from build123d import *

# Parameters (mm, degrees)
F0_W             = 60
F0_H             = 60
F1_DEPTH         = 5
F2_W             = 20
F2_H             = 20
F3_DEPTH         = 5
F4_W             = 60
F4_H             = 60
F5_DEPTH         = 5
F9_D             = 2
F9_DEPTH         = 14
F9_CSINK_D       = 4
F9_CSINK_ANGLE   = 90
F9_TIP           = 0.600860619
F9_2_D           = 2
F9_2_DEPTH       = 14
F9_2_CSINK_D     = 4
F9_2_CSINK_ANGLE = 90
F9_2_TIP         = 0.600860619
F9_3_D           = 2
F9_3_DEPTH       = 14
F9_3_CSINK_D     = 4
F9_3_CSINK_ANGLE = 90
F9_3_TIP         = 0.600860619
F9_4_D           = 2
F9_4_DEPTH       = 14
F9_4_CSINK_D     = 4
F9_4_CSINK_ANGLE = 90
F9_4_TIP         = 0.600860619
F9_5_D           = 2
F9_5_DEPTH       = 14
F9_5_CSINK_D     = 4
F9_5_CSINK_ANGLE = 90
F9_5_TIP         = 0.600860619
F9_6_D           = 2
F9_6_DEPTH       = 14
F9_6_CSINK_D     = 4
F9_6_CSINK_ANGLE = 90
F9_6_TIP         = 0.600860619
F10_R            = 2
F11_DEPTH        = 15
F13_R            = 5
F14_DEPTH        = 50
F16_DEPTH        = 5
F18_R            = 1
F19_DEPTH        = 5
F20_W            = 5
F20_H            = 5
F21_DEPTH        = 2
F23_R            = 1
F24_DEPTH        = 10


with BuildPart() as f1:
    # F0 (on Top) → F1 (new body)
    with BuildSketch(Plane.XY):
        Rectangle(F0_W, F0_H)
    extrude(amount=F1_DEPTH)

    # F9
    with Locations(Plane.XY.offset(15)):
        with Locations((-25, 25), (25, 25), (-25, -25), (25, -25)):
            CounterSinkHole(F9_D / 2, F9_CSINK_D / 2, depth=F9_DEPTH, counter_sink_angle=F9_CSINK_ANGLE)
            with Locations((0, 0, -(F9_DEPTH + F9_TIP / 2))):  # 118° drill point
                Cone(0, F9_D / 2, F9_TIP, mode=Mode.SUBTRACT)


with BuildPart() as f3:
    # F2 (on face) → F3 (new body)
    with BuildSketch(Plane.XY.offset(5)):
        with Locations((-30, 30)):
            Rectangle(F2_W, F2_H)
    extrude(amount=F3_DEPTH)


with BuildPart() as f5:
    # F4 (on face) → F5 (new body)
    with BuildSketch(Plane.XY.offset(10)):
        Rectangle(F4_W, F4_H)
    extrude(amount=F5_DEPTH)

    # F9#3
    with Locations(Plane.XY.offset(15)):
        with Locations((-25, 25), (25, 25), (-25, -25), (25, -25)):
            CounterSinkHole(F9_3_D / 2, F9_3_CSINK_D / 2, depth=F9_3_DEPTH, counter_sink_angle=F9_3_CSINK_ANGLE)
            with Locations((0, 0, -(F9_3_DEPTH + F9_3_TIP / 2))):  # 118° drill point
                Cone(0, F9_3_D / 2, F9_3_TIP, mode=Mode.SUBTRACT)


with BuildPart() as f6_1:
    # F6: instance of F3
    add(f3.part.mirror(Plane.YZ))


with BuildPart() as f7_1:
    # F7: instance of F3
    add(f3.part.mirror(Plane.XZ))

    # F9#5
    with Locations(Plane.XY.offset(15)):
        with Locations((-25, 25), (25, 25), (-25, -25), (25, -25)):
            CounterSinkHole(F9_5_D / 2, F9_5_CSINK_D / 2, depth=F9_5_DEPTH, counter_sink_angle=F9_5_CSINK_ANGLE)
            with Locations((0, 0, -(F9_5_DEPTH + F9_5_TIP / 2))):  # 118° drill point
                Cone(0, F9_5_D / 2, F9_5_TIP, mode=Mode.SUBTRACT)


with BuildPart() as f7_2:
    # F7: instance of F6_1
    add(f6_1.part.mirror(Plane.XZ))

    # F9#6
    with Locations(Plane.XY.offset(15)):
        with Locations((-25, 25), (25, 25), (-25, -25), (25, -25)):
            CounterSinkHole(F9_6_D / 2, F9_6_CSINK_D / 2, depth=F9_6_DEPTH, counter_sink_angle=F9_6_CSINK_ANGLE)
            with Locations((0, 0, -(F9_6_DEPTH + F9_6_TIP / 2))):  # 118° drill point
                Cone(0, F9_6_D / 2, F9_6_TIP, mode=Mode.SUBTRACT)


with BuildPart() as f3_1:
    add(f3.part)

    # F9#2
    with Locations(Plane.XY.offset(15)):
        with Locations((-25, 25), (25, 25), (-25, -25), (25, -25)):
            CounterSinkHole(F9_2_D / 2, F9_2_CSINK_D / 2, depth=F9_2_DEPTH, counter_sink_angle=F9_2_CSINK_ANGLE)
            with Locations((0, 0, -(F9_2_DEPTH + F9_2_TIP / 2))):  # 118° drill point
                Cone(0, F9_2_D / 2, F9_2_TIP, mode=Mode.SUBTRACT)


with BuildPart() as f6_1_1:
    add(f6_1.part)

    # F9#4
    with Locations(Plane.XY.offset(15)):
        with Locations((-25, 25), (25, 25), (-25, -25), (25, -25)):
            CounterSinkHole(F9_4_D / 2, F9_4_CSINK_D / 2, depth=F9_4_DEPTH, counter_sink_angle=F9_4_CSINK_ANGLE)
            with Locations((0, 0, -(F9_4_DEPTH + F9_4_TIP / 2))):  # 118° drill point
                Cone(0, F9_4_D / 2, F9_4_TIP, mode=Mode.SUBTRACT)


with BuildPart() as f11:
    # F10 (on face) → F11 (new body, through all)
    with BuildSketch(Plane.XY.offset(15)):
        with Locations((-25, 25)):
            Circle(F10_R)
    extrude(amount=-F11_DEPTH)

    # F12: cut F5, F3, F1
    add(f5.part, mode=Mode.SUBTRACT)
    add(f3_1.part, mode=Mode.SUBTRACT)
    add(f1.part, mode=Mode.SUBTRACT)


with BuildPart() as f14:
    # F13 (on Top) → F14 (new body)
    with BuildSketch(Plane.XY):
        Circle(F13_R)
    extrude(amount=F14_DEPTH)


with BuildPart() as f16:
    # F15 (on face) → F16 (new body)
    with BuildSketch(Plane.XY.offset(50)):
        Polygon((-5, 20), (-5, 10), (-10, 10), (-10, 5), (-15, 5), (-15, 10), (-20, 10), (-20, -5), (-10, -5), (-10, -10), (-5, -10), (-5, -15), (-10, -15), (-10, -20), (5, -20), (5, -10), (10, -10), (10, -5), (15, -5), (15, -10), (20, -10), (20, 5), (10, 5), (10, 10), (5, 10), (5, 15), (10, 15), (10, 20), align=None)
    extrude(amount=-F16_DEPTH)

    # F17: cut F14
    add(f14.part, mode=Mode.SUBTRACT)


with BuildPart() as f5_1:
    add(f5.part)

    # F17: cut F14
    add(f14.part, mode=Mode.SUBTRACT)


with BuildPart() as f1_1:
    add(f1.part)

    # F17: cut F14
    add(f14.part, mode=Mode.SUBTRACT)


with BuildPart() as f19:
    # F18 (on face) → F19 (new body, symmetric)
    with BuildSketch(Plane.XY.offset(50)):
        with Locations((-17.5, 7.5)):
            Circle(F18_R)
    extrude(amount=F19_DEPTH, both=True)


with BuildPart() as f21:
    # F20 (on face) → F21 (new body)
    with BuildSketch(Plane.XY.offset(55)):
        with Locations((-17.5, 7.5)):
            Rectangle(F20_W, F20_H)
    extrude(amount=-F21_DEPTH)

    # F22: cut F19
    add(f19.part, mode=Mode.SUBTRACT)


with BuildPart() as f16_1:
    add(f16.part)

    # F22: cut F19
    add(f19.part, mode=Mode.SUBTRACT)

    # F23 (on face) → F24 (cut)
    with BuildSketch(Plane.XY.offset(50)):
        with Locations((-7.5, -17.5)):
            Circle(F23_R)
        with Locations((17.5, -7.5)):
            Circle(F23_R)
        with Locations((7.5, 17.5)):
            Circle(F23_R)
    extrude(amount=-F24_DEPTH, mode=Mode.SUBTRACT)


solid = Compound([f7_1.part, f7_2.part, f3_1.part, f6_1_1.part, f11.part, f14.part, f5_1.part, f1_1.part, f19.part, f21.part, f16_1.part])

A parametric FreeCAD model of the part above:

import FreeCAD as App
import Part
import Sketcher


def add_polygon(sketch, points):
    """Adds a closed chain of lines whose ends are joined by coincident constraints."""
    first, n = sketch.GeometryCount, len(points)
    for a, b in zip(points, points[1:] + points[:1]):
        sketch.addGeometry(Part.LineSegment(App.Vector(*a, 0), App.Vector(*b, 0)), False)
    for i in range(n):
        sketch.addConstraint(Sketcher.Constraint("Coincident", first + i, 2, first + (i + 1) % n, 1))

doc = App.newDocument("Part")
params = doc.addObject("Spreadsheet::Sheet", "Params")
for row, (alias, value) in enumerate([
    ("sketch1_width", "60 mm"),
    ("pad1_length", "5 mm"),
    ("sketch2_diameter", "2 mm"),
    ("hole_diameter", "2 mm"),
    ("hole_depth", "14 mm"),
    ("hole_csink_diameter", "4 mm"),
    ("sketch3_width", "20 mm"),
    ("pad2_length", "5 mm"),
    ("sketch4_width", "60 mm"),
    ("pad3_length", "5 mm"),
    ("sketch5_diameter", "2 mm"),
    ("hole2_diameter", "2 mm"),
    ("hole2_depth", "14 mm"),
    ("hole2_csink_diameter", "4 mm"),
    ("sketch6_diameter", "2 mm"),
    ("hole3_diameter", "2 mm"),
    ("hole3_depth", "14 mm"),
    ("hole3_csink_diameter", "4 mm"),
    ("sketch7_diameter", "2 mm"),
    ("hole4_diameter", "2 mm"),
    ("hole4_depth", "14 mm"),
    ("hole4_csink_diameter", "4 mm"),
    ("sketch8_diameter", "2 mm"),
    ("hole5_diameter", "2 mm"),
    ("hole5_depth", "14 mm"),
    ("hole5_csink_diameter", "4 mm"),
    ("sketch9_diameter", "2 mm"),
    ("hole6_diameter", "2 mm"),
    ("hole6_depth", "14 mm"),
    ("hole6_csink_diameter", "4 mm"),
    ("sketch10_diameter", "4 mm"),
    ("pad4_length", "15 mm"),
    ("sketch11_diameter", "10 mm"),
    ("pad5_length", "50 mm"),
    ("sketch12_width", "5 mm"),
    ("sketch12_width2", "15 mm"),
    ("pad6_length", "5 mm"),
    ("sketch13_diameter", "2 mm"),
    ("pad7_length", "10 mm"),
    ("sketch14_width", "5 mm"),
    ("pad8_length", "2 mm"),
    ("sketch15_diameter", "2 mm"),
    ("pocket1_length", "10 mm"),
], start=1):
    params.set(f"A{row}", alias)
    params.set(f"B{row}", "=" + value)
    params.setAlias(f"B{row}", alias)

body = doc.addObject("PartDesign::Body", "Body")

# Sketch on XY plane
sketch1 = body.newObject("Sketcher::SketchObject", "Sketch")
sketch1.AttachmentSupport = (doc.getObject("XY_Plane"), [""])
sketch1.MapMode = "FlatFace"
add_polygon(sketch1, [(-30, 30), (-30, -30), (30, -30), (30, 30)])  # lines 0-3
sketch1.addConstraint(Sketcher.Constraint("Vertical", 0))
sketch1.addConstraint(Sketcher.Constraint("Horizontal", 1))
sketch1.addConstraint(Sketcher.Constraint("Vertical", 2))
sketch1.addConstraint(Sketcher.Constraint("Horizontal", 3))
sketch1.addConstraint(Sketcher.Constraint("Symmetric", 0, 2, 2, 2, -1, 1))
sketch1.addConstraint(Sketcher.Constraint("Equal", 3, 0))
sketch1.addConstraint(Sketcher.Constraint("DistanceX", 1, 1, 1, 2, 60.0))
sketch1.setExpression("Constraints[10]", "Params.sketch1_width")
pad1 = body.newObject("PartDesign::Pad", "Pad")
pad1.Profile = sketch1
pad1.setExpression("Length", "Params.pad1_length")

# Sketch on XY plane
sketch2 = body.newObject("Sketcher::SketchObject", "Sketch001")
sketch2.AttachmentSupport = (doc.getObject("XY_Plane"), [""])
sketch2.MapMode = "FlatFace"
sketch2.AttachmentOffset = App.Placement(App.Vector(0, 0, 15), App.Rotation())
sketch2.addGeometry(Part.Circle(App.Vector(-25, 25, 0), App.Vector(0, 0, 1), 1), False)
sketch2.addGeometry(Part.Circle(App.Vector(25, 25, 0), App.Vector(0, 0, 1), 1), False)
sketch2.addGeometry(Part.Circle(App.Vector(-25, -25, 0), App.Vector(0, 0, 1), 1), False)
sketch2.addGeometry(Part.Circle(App.Vector(25, -25, 0), App.Vector(0, 0, 1), 1), False)
sketch2.addConstraint(Sketcher.Constraint("Equal", 0, 1))
sketch2.addConstraint(Sketcher.Constraint("Equal", 1, 2))
sketch2.addConstraint(Sketcher.Constraint("Equal", 2, 3))
sketch2.addConstraint(Sketcher.Constraint("Symmetric", 1, 3, 2, 3, -1, 1))
sketch2.addConstraint(Sketcher.Constraint("Symmetric", 0, 3, 3, 3, -1, 1))
sketch2.addConstraint(Sketcher.Constraint("Symmetric", 0, 3, 1, 3, -2))
sketch2.addConstraint(Sketcher.Constraint("Diameter", 0, 2.0))
sketch2.addConstraint(Sketcher.Constraint("DistanceX", 0, 3, -1, 1, 25.0))
sketch2.addConstraint(Sketcher.Constraint("DistanceY", -1, 1, 0, 3, 25.0))
sketch2.setExpression("Constraints[6]", "Params.sketch2_diameter")
doc.recompute()
hole = body.newObject("PartDesign::Hole", "Hole")
hole.Profile = sketch2
hole.ThreadType = "None"
hole.setExpression("Diameter", "Params.hole_diameter")
hole.DepthType = "Dimension"
hole.setExpression("Depth", "Params.hole_depth")
hole.DrillPoint = "Angled"
hole.DrillPointAngle = 118
hole.HoleCutType = "Countersink"
hole.setExpression("HoleCutDiameter", "Params.hole_csink_diameter")
hole.HoleCutCountersinkAngle = 90
body2 = doc.addObject("PartDesign::Body", "Body001")

# Sketch on XY plane
sketch3 = body2.newObject("Sketcher::SketchObject", "Sketch002")
sketch3.AttachmentSupport = (doc.getObject("XY_Plane001"), [""])
sketch3.MapMode = "FlatFace"
sketch3.AttachmentOffset = App.Placement(App.Vector(0, 0, 5), App.Rotation())
add_polygon(sketch3, [(-40, 40), (-40, 20), (-20, 20), (-20, 40)])  # lines 0-3
sketch3.addConstraint(Sketcher.Constraint("Vertical", 0))
sketch3.addConstraint(Sketcher.Constraint("Horizontal", 1))
sketch3.addConstraint(Sketcher.Constraint("Vertical", 2))
sketch3.addConstraint(Sketcher.Constraint("Horizontal", 3))
sketch3.addConstraint(Sketcher.Constraint("Equal", 3, 0))
sketch3.addConstraint(Sketcher.Constraint("DistanceX", 1, 1, 1, 2, 20.0))
sketch3.addConstraint(Sketcher.Constraint("DistanceX", 0, 2, -1, 1, 40.0))
sketch3.addConstraint(Sketcher.Constraint("DistanceY", -1, 1, 0, 2, 20.0))
sketch3.setExpression("Constraints[9]", "Params.sketch3_width")
pad2 = body2.newObject("PartDesign::Pad", "Pad001")
pad2.Profile = sketch3
pad2.setExpression("Length", "Params.pad2_length")
body3 = doc.addObject("PartDesign::Body", "Body002")

# Sketch on XY plane
sketch4 = body3.newObject("Sketcher::SketchObject", "Sketch003")
sketch4.AttachmentSupport = (doc.getObject("XY_Plane002"), [""])
sketch4.MapMode = "FlatFace"
sketch4.AttachmentOffset = App.Placement(App.Vector(0, 0, 10), App.Rotation())
add_polygon(sketch4, [(-30, 30), (-30, -30), (30, -30), (30, 30)])  # lines 0-3
sketch4.addConstraint(Sketcher.Constraint("Vertical", 0))
sketch4.addConstraint(Sketcher.Constraint("Horizontal", 1))
sketch4.addConstraint(Sketcher.Constraint("Vertical", 2))
sketch4.addConstraint(Sketcher.Constraint("Horizontal", 3))
sketch4.addConstraint(Sketcher.Constraint("Symmetric", 0, 2, 2, 2, -1, 1))
sketch4.addConstraint(Sketcher.Constraint("Equal", 3, 0))
sketch4.addConstraint(Sketcher.Constraint("DistanceX", 1, 1, 1, 2, 60.0))
sketch4.setExpression("Constraints[10]", "Params.sketch4_width")
pad3 = body3.newObject("PartDesign::Pad", "Pad002")
pad3.Profile = sketch4
pad3.setExpression("Length", "Params.pad3_length")

# Sketch on XY plane
sketch5 = body3.newObject("Sketcher::SketchObject", "Sketch004")
sketch5.AttachmentSupport = (doc.getObject("XY_Plane002"), [""])
sketch5.MapMode = "FlatFace"
sketch5.AttachmentOffset = App.Placement(App.Vector(0, 0, 15), App.Rotation())
sketch5.addGeometry(Part.Circle(App.Vector(-25, 25, 0), App.Vector(0, 0, 1), 1), False)
sketch5.addGeometry(Part.Circle(App.Vector(25, 25, 0), App.Vector(0, 0, 1), 1), False)
sketch5.addGeometry(Part.Circle(App.Vector(-25, -25, 0), App.Vector(0, 0, 1), 1), False)
sketch5.addGeometry(Part.Circle(App.Vector(25, -25, 0), App.Vector(0, 0, 1), 1), False)
sketch5.addConstraint(Sketcher.Constraint("Equal", 0, 1))
sketch5.addConstraint(Sketcher.Constraint("Equal", 1, 2))
sketch5.addConstraint(Sketcher.Constraint("Equal", 2, 3))
sketch5.addConstraint(Sketcher.Constraint("Symmetric", 1, 3, 2, 3, -1, 1))
sketch5.addConstraint(Sketcher.Constraint("Symmetric", 0, 3, 3, 3, -1, 1))
sketch5.addConstraint(Sketcher.Constraint("Symmetric", 0, 3, 1, 3, -2))
sketch5.addConstraint(Sketcher.Constraint("Diameter", 0, 2.0))
sketch5.addConstraint(Sketcher.Constraint("DistanceX", 0, 3, -1, 1, 25.0))
sketch5.addConstraint(Sketcher.Constraint("DistanceY", -1, 1, 0, 3, 25.0))
sketch5.setExpression("Constraints[6]", "Params.sketch5_diameter")
doc.recompute()
hole2 = body3.newObject("PartDesign::Hole", "Hole001")
hole2.Profile = sketch5
hole2.ThreadType = "None"
hole2.setExpression("Diameter", "Params.hole2_diameter")
hole2.DepthType = "Dimension"
hole2.setExpression("Depth", "Params.hole2_depth")
hole2.DrillPoint = "Angled"
hole2.DrillPointAngle = 118
hole2.HoleCutType = "Countersink"
hole2.setExpression("HoleCutDiameter", "Params.hole2_csink_diameter")
hole2.HoleCutCountersinkAngle = 90
body4 = doc.addObject("PartDesign::Body", "Body003")
doc.recompute()

mirroring = doc.addObject("Part::Mirroring", "Mirroring")
mirroring.Source = body2
mirroring.Base = App.Vector(0, 0, 0)
mirroring.Normal = App.Vector(1, 0, 0)
body4.BaseFeature = mirroring
doc.recompute()
body5 = doc.addObject("PartDesign::Body", "Body004")
doc.recompute()

mirroring2 = doc.addObject("Part::Mirroring", "Mirroring001")
mirroring2.Source = body2
mirroring2.Base = App.Vector(0, 0, 0)
mirroring2.Normal = App.Vector(0, -1, 0)
body5.BaseFeature = mirroring2
doc.recompute()

# Sketch on XY plane
sketch6 = body5.newObject("Sketcher::SketchObject", "Sketch005")
sketch6.AttachmentSupport = (doc.getObject("XY_Plane004"), [""])
sketch6.MapMode = "FlatFace"
sketch6.AttachmentOffset = App.Placement(App.Vector(0, 0, 15), App.Rotation())
sketch6.addGeometry(Part.Circle(App.Vector(-25, 25, 0), App.Vector(0, 0, 1), 1), False)
sketch6.addGeometry(Part.Circle(App.Vector(25, 25, 0), App.Vector(0, 0, 1), 1), False)
sketch6.addGeometry(Part.Circle(App.Vector(-25, -25, 0), App.Vector(0, 0, 1), 1), False)
sketch6.addGeometry(Part.Circle(App.Vector(25, -25, 0), App.Vector(0, 0, 1), 1), False)
sketch6.addConstraint(Sketcher.Constraint("Equal", 0, 1))
sketch6.addConstraint(Sketcher.Constraint("Equal", 1, 2))
sketch6.addConstraint(Sketcher.Constraint("Equal", 2, 3))
sketch6.addConstraint(Sketcher.Constraint("Symmetric", 1, 3, 2, 3, -1, 1))
sketch6.addConstraint(Sketcher.Constraint("Symmetric", 0, 3, 3, 3, -1, 1))
sketch6.addConstraint(Sketcher.Constraint("Symmetric", 0, 3, 1, 3, -2))
sketch6.addConstraint(Sketcher.Constraint("Diameter", 0, 2.0))
sketch6.addConstraint(Sketcher.Constraint("DistanceX", 0, 3, -1, 1, 25.0))
sketch6.addConstraint(Sketcher.Constraint("DistanceY", -1, 1, 0, 3, 25.0))
sketch6.setExpression("Constraints[6]", "Params.sketch6_diameter")
doc.recompute()
hole3 = body5.newObject("PartDesign::Hole", "Hole002")
hole3.Profile = sketch6
hole3.ThreadType = "None"
hole3.setExpression("Diameter", "Params.hole3_diameter")
hole3.DepthType = "Dimension"
hole3.setExpression("Depth", "Params.hole3_depth")
hole3.DrillPoint = "Angled"
hole3.DrillPointAngle = 118
hole3.HoleCutType = "Countersink"
hole3.setExpression("HoleCutDiameter", "Params.hole3_csink_diameter")
hole3.HoleCutCountersinkAngle = 90
body6 = doc.addObject("PartDesign::Body", "Body005")
doc.recompute()

mirroring3 = doc.addObject("Part::Mirroring", "Mirroring002")
mirroring3.Source = body4
mirroring3.Base = App.Vector(0, 0, 0)
mirroring3.Normal = App.Vector(0, -1, 0)
body6.BaseFeature = mirroring3
doc.recompute()

# Sketch on XY plane
sketch7 = body6.newObject("Sketcher::SketchObject", "Sketch006")
sketch7.AttachmentSupport = (doc.getObject("XY_Plane005"), [""])
sketch7.MapMode = "FlatFace"
sketch7.AttachmentOffset = App.Placement(App.Vector(0, 0, 15), App.Rotation())
sketch7.addGeometry(Part.Circle(App.Vector(-25, 25, 0), App.Vector(0, 0, 1), 1), False)
sketch7.addGeometry(Part.Circle(App.Vector(25, 25, 0), App.Vector(0, 0, 1), 1), False)
sketch7.addGeometry(Part.Circle(App.Vector(-25, -25, 0), App.Vector(0, 0, 1), 1), False)
sketch7.addGeometry(Part.Circle(App.Vector(25, -25, 0), App.Vector(0, 0, 1), 1), False)
sketch7.addConstraint(Sketcher.Constraint("Equal", 0, 1))
sketch7.addConstraint(Sketcher.Constraint("Equal", 1, 2))
sketch7.addConstraint(Sketcher.Constraint("Equal", 2, 3))
sketch7.addConstraint(Sketcher.Constraint("Symmetric", 1, 3, 2, 3, -1, 1))
sketch7.addConstraint(Sketcher.Constraint("Symmetric", 0, 3, 3, 3, -1, 1))
sketch7.addConstraint(Sketcher.Constraint("Symmetric", 0, 3, 1, 3, -2))
sketch7.addConstraint(Sketcher.Constraint("Diameter", 0, 2.0))
sketch7.addConstraint(Sketcher.Constraint("DistanceX", 0, 3, -1, 1, 25.0))
sketch7.addConstraint(Sketcher.Constraint("DistanceY", -1, 1, 0, 3, 25.0))
sketch7.setExpression("Constraints[6]", "Params.sketch7_diameter")
doc.recompute()
hole4 = body6.newObject("PartDesign::Hole", "Hole003")
hole4.Profile = sketch7
hole4.ThreadType = "None"
hole4.setExpression("Diameter", "Params.hole4_diameter")
hole4.DepthType = "Dimension"
hole4.setExpression("Depth", "Params.hole4_depth")
hole4.DrillPoint = "Angled"
hole4.DrillPointAngle = 118
hole4.HoleCutType = "Countersink"
hole4.setExpression("HoleCutDiameter", "Params.hole4_csink_diameter")
hole4.HoleCutCountersinkAngle = 90

# Sketch on XY plane
sketch8 = body2.newObject("Sketcher::SketchObject", "Sketch007")
sketch8.AttachmentSupport = (doc.getObject("XY_Plane001"), [""])
sketch8.MapMode = "FlatFace"
sketch8.AttachmentOffset = App.Placement(App.Vector(0, 0, 15), App.Rotation())
sketch8.addGeometry(Part.Circle(App.Vector(-25, 25, 0), App.Vector(0, 0, 1), 1), False)
sketch8.addGeometry(Part.Circle(App.Vector(25, 25, 0), App.Vector(0, 0, 1), 1), False)
sketch8.addGeometry(Part.Circle(App.Vector(-25, -25, 0), App.Vector(0, 0, 1), 1), False)
sketch8.addGeometry(Part.Circle(App.Vector(25, -25, 0), App.Vector(0, 0, 1), 1), False)
sketch8.addConstraint(Sketcher.Constraint("Equal", 0, 1))
sketch8.addConstraint(Sketcher.Constraint("Equal", 1, 2))
sketch8.addConstraint(Sketcher.Constraint("Equal", 2, 3))
sketch8.addConstraint(Sketcher.Constraint("Symmetric", 1, 3, 2, 3, -1, 1))
sketch8.addConstraint(Sketcher.Constraint("Symmetric", 0, 3, 3, 3, -1, 1))
sketch8.addConstraint(Sketcher.Constraint("Symmetric", 0, 3, 1, 3, -2))
sketch8.addConstraint(Sketcher.Constraint("Diameter", 0, 2.0))
sketch8.addConstraint(Sketcher.Constraint("DistanceX", 0, 3, -1, 1, 25.0))
sketch8.addConstraint(Sketcher.Constraint("DistanceY", -1, 1, 0, 3, 25.0))
sketch8.setExpression("Constraints[6]", "Params.sketch8_diameter")
doc.recompute()
hole5 = body2.newObject("PartDesign::Hole", "Hole004")
hole5.Profile = sketch8
hole5.ThreadType = "None"
hole5.setExpression("Diameter", "Params.hole5_diameter")
hole5.DepthType = "Dimension"
hole5.setExpression("Depth", "Params.hole5_depth")
hole5.DrillPoint = "Angled"
hole5.DrillPointAngle = 118
hole5.HoleCutType = "Countersink"
hole5.setExpression("HoleCutDiameter", "Params.hole5_csink_diameter")
hole5.HoleCutCountersinkAngle = 90

# Sketch on XY plane
sketch9 = body4.newObject("Sketcher::SketchObject", "Sketch008")
sketch9.AttachmentSupport = (doc.getObject("XY_Plane003"), [""])
sketch9.MapMode = "FlatFace"
sketch9.AttachmentOffset = App.Placement(App.Vector(0, 0, 15), App.Rotation())
sketch9.addGeometry(Part.Circle(App.Vector(-25, 25, 0), App.Vector(0, 0, 1), 1), False)
sketch9.addGeometry(Part.Circle(App.Vector(25, 25, 0), App.Vector(0, 0, 1), 1), False)
sketch9.addGeometry(Part.Circle(App.Vector(-25, -25, 0), App.Vector(0, 0, 1), 1), False)
sketch9.addGeometry(Part.Circle(App.Vector(25, -25, 0), App.Vector(0, 0, 1), 1), False)
sketch9.addConstraint(Sketcher.Constraint("Equal", 0, 1))
sketch9.addConstraint(Sketcher.Constraint("Equal", 1, 2))
sketch9.addConstraint(Sketcher.Constraint("Equal", 2, 3))
sketch9.addConstraint(Sketcher.Constraint("Symmetric", 1, 3, 2, 3, -1, 1))
sketch9.addConstraint(Sketcher.Constraint("Symmetric", 0, 3, 3, 3, -1, 1))
sketch9.addConstraint(Sketcher.Constraint("Symmetric", 0, 3, 1, 3, -2))
sketch9.addConstraint(Sketcher.Constraint("Diameter", 0, 2.0))
sketch9.addConstraint(Sketcher.Constraint("DistanceX", 0, 3, -1, 1, 25.0))
sketch9.addConstraint(Sketcher.Constraint("DistanceY", -1, 1, 0, 3, 25.0))
sketch9.setExpression("Constraints[6]", "Params.sketch9_diameter")
doc.recompute()
hole6 = body4.newObject("PartDesign::Hole", "Hole005")
hole6.Profile = sketch9
hole6.ThreadType = "None"
hole6.setExpression("Diameter", "Params.hole6_diameter")
hole6.DepthType = "Dimension"
hole6.setExpression("Depth", "Params.hole6_depth")
hole6.DrillPoint = "Angled"
hole6.DrillPointAngle = 118
hole6.HoleCutType = "Countersink"
hole6.setExpression("HoleCutDiameter", "Params.hole6_csink_diameter")
hole6.HoleCutCountersinkAngle = 90
body7 = doc.addObject("PartDesign::Body", "Body006")

# Sketch on XY plane
sketch10 = body7.newObject("Sketcher::SketchObject", "Sketch009")
sketch10.AttachmentSupport = (doc.getObject("XY_Plane006"), [""])
sketch10.MapMode = "FlatFace"
sketch10.AttachmentOffset = App.Placement(App.Vector(0, 0, 15), App.Rotation())
sketch10.addGeometry(Part.Circle(App.Vector(-25, 25, 0), App.Vector(0, 0, 1), 2), False)
sketch10.addConstraint(Sketcher.Constraint("Diameter", 0, 4.0))
sketch10.addConstraint(Sketcher.Constraint("DistanceX", 0, 3, -1, 1, 25.0))
sketch10.addConstraint(Sketcher.Constraint("DistanceY", -1, 1, 0, 3, 25.0))
sketch10.setExpression("Constraints[0]", "Params.sketch10_diameter")
pad4 = body7.newObject("PartDesign::Pad", "Pad003")
pad4.Profile = sketch10
pad4.setExpression("Length", "Params.pad4_length")
pad4.Reversed = True
doc.recompute()

body8 = doc.addObject("PartDesign::Body", "Body007")
body8.BaseFeature = body3
boolean = body7.newObject("PartDesign::Boolean", "Boolean")
boolean.Type = "Cut"
boolean.addObjects([body8])
doc.recompute()

body9 = doc.addObject("PartDesign::Body", "Body008")
body9.BaseFeature = body2
boolean2 = body7.newObject("PartDesign::Boolean", "Boolean001")
boolean2.Type = "Cut"
boolean2.addObjects([body9])
doc.recompute()

body10 = doc.addObject("PartDesign::Body", "Body009")
body10.BaseFeature = body
boolean3 = body7.newObject("PartDesign::Boolean", "Boolean002")
boolean3.Type = "Cut"
boolean3.addObjects([body10])
doc.recompute()
body11 = doc.addObject("PartDesign::Body", "Body010")

# Sketch on XY plane
sketch11 = body11.newObject("Sketcher::SketchObject", "Sketch010")
sketch11.AttachmentSupport = (doc.getObject("XY_Plane010"), [""])
sketch11.MapMode = "FlatFace"
sketch11.addGeometry(Part.Circle(App.Vector(0, 0, 0), App.Vector(0, 0, 1), 5), False)
sketch11.addConstraint(Sketcher.Constraint("Coincident", 0, 3, -1, 1))
sketch11.addConstraint(Sketcher.Constraint("Diameter", 0, 10.0))
sketch11.setExpression("Constraints[1]", "Params.sketch11_diameter")
pad5 = body11.newObject("PartDesign::Pad", "Pad004")
pad5.Profile = sketch11
pad5.setExpression("Length", "Params.pad5_length")
body12 = doc.addObject("PartDesign::Body", "Body011")

# Sketch on XY plane
sketch12 = body12.newObject("Sketcher::SketchObject", "Sketch011")
sketch12.AttachmentSupport = (doc.getObject("XY_Plane011"), [""])
sketch12.MapMode = "FlatFace"
sketch12.AttachmentOffset = App.Placement(App.Vector(0, 0, 50), App.Rotation())
add_polygon(sketch12, [(-5, 20), (-5, 10), (-10, 10), (-10, 5), (-15, 5), (-15, 10), (-20, 10), (-20, -5), (-10, -5), (-10, -10), (-5, -10), (-5, -15), (-10, -15), (-10, -20), (5, -20), (5, -10), (10, -10), (10, -5), (15, -5), (15, -10), (20, -10), (20, 5), (10, 5), (10, 10), (5, 10), (5, 15), (10, 15), (10, 20)])  # lines 0-27
sketch12.addConstraint(Sketcher.Constraint("Vertical", 0))
sketch12.addConstraint(Sketcher.Constraint("Horizontal", 1))
sketch12.addConstraint(Sketcher.Constraint("Vertical", 2))
sketch12.addConstraint(Sketcher.Constraint("Horizontal", 3))
sketch12.addConstraint(Sketcher.Constraint("Vertical", 4))
sketch12.addConstraint(Sketcher.Constraint("Horizontal", 5))
sketch12.addConstraint(Sketcher.Constraint("Vertical", 6))
sketch12.addConstraint(Sketcher.Constraint("Horizontal", 7))
sketch12.addConstraint(Sketcher.Constraint("Vertical", 8))
sketch12.addConstraint(Sketcher.Constraint("Horizontal", 9))
sketch12.addConstraint(Sketcher.Constraint("Vertical", 10))
sketch12.addConstraint(Sketcher.Constraint("Horizontal", 11))
sketch12.addConstraint(Sketcher.Constraint("Vertical", 12))
sketch12.addConstraint(Sketcher.Constraint("Horizontal", 13))
sketch12.addConstraint(Sketcher.Constraint("Vertical", 14))
sketch12.addConstraint(Sketcher.Constraint("Horizontal", 15))
sketch12.addConstraint(Sketcher.Constraint("Vertical", 16))
sketch12.addConstraint(Sketcher.Constraint("Horizontal", 17))
sketch12.addConstraint(Sketcher.Constraint("Vertical", 18))
sketch12.addConstraint(Sketcher.Constraint("Horizontal", 19))
sketch12.addConstraint(Sketcher.Constraint("Vertical", 20))
sketch12.addConstraint(Sketcher.Constraint("Horizontal", 21))
sketch12.addConstraint(Sketcher.Constraint("Vertical", 22))
sketch12.addConstraint(Sketcher.Constraint("Horizontal", 23))
sketch12.addConstraint(Sketcher.Constraint("Vertical", 24))
sketch12.addConstraint(Sketcher.Constraint("Horizontal", 25))
sketch12.addConstraint(Sketcher.Constraint("Vertical", 26))
sketch12.addConstraint(Sketcher.Constraint("Horizontal", 27))
sketch12.addConstraint(Sketcher.Constraint("Symmetric", 0, 2, 14, 2, -1, 1))
sketch12.addConstraint(Sketcher.Constraint("Symmetric", 2, 2, 16, 2, -1, 1))
sketch12.addConstraint(Sketcher.Constraint("Symmetric", 4, 2, 18, 2, -1, 1))
sketch12.addConstraint(Sketcher.Constraint("Symmetric", 6, 2, 20, 2, -1, 1))
sketch12.addConstraint(Sketcher.Constraint("Symmetric", 8, 2, 22, 2, -1, 1))
sketch12.addConstraint(Sketcher.Constraint("Symmetric", 10, 2, 24, 2, -1, 1))
sketch12.addConstraint(Sketcher.Constraint("Symmetric", 12, 2, 26, 2, -1, 1))
sketch12.addConstraint(Sketcher.Constraint("Symmetric", 9, 2, 14, 2, -2))
sketch12.addConstraint(Sketcher.Constraint("Symmetric", 7, 2, 16, 2, -2))
sketch12.addConstraint(Sketcher.Constraint("Horizontal", 1, 2, 4, 2))
sketch12.addConstraint(Sketcher.Constraint("Vertical", 8, 2, 11, 2))
sketch12.addConstraint(Sketcher.Constraint("Equal", 1, 3))
sketch12.addConstraint(Sketcher.Constraint("Equal", 3, 5))
sketch12.addConstraint(Sketcher.Constraint("Equal", 21, 0))
sketch12.addConstraint(Sketcher.Constraint("Equal", 25, 2))
sketch12.addConstraint(Sketcher.Constraint("Equal", 27, 6))
sketch12.addConstraint(Sketcher.Constraint("Equal", 8, 10))
sketch12.addConstraint(Sketcher.Constraint("DistanceX", 1, 2, 1, 1, 5.0))
sketch12.addConstraint(Sketcher.Constraint("DistanceX", 13, 1, 13, 2, 15.0))
sketch12.setExpression("Constraints[73]", "Params.sketch12_width")
sketch12.setExpression("Constraints[74]", "Params.sketch12_width2")
pad6 = body12.newObject("PartDesign::Pad", "Pad005")
pad6.Profile = sketch12
pad6.setExpression("Length", "Params.pad6_length")
pad6.Reversed = True
doc.recompute()

body13 = doc.addObject("PartDesign::Body", "Body012")
body13.BaseFeature = body11
boolean4 = body12.newObject("PartDesign::Boolean", "Boolean003")
boolean4.Type = "Cut"
boolean4.addObjects([body13])
doc.recompute()

body14 = doc.addObject("PartDesign::Body", "Body013")
body14.BaseFeature = body11
boolean5 = body3.newObject("PartDesign::Boolean", "Boolean004")
boolean5.Type = "Cut"
boolean5.addObjects([body14])
doc.recompute()

body15 = doc.addObject("PartDesign::Body", "Body014")
body15.BaseFeature = body11
boolean6 = body.newObject("PartDesign::Boolean", "Boolean005")
boolean6.Type = "Cut"
boolean6.addObjects([body15])
doc.recompute()
body16 = doc.addObject("PartDesign::Body", "Body015")

# Sketch on XY plane
sketch13 = body16.newObject("Sketcher::SketchObject", "Sketch012")
sketch13.AttachmentSupport = (doc.getObject("XY_Plane015"), [""])
sketch13.MapMode = "FlatFace"
sketch13.AttachmentOffset = App.Placement(App.Vector(0, 0, 50), App.Rotation())
sketch13.addGeometry(Part.Circle(App.Vector(-17.5, 7.5, 0), App.Vector(0, 0, 1), 1), False)
sketch13.addConstraint(Sketcher.Constraint("Diameter", 0, 2.0))
sketch13.addConstraint(Sketcher.Constraint("DistanceX", 0, 3, -1, 1, 17.5))
sketch13.addConstraint(Sketcher.Constraint("DistanceY", -1, 1, 0, 3, 7.5))
sketch13.setExpression("Constraints[0]", "Params.sketch13_diameter")
pad7 = body16.newObject("PartDesign::Pad", "Pad006")
pad7.Profile = sketch13
pad7.setExpression("Length", "Params.pad7_length")
pad7.Midplane = True
body17 = doc.addObject("PartDesign::Body", "Body016")

# Sketch on XY plane
sketch14 = body17.newObject("Sketcher::SketchObject", "Sketch013")
sketch14.AttachmentSupport = (doc.getObject("XY_Plane016"), [""])
sketch14.MapMode = "FlatFace"
sketch14.AttachmentOffset = App.Placement(App.Vector(0, 0, 55), App.Rotation())
add_polygon(sketch14, [(-20, 10), (-20, 5), (-15, 5), (-15, 10)])  # lines 0-3
sketch14.addConstraint(Sketcher.Constraint("Vertical", 0))
sketch14.addConstraint(Sketcher.Constraint("Horizontal", 1))
sketch14.addConstraint(Sketcher.Constraint("Vertical", 2))
sketch14.addConstraint(Sketcher.Constraint("Horizontal", 3))
sketch14.addConstraint(Sketcher.Constraint("Equal", 3, 0))
sketch14.addConstraint(Sketcher.Constraint("DistanceX", 1, 1, 1, 2, 5.0))
sketch14.addConstraint(Sketcher.Constraint("DistanceX", 0, 2, -1, 1, 20.0))
sketch14.addConstraint(Sketcher.Constraint("DistanceY", -1, 1, 0, 2, 5.0))
sketch14.setExpression("Constraints[9]", "Params.sketch14_width")
pad8 = body17.newObject("PartDesign::Pad", "Pad007")
pad8.Profile = sketch14
pad8.setExpression("Length", "Params.pad8_length")
pad8.Reversed = True
doc.recompute()

body18 = doc.addObject("PartDesign::Body", "Body017")
body18.BaseFeature = body16
boolean7 = body17.newObject("PartDesign::Boolean", "Boolean006")
boolean7.Type = "Cut"
boolean7.addObjects([body18])
doc.recompute()

body19 = doc.addObject("PartDesign::Body", "Body018")
body19.BaseFeature = body16
boolean8 = body12.newObject("PartDesign::Boolean", "Boolean007")
boolean8.Type = "Cut"
boolean8.addObjects([body19])
doc.recompute()

# Sketch on XY plane
sketch15 = body12.newObject("Sketcher::SketchObject", "Sketch014")
sketch15.AttachmentSupport = (doc.getObject("XY_Plane011"), [""])
sketch15.MapMode = "FlatFace"
sketch15.AttachmentOffset = App.Placement(App.Vector(0, 0, 50), App.Rotation())
sketch15.addGeometry(Part.Circle(App.Vector(-7.5, -17.5, 0), App.Vector(0, 0, 1), 1), False)
sketch15.addGeometry(Part.Circle(App.Vector(17.5, -7.5, 0), App.Vector(0, 0, 1), 1), False)
sketch15.addGeometry(Part.Circle(App.Vector(7.5, 17.5, 0), App.Vector(0, 0, 1), 1), False)
sketch15.addConstraint(Sketcher.Constraint("Equal", 0, 1))
sketch15.addConstraint(Sketcher.Constraint("Equal", 1, 2))
sketch15.addConstraint(Sketcher.Constraint("Symmetric", 0, 3, 2, 3, -1, 1))
sketch15.addConstraint(Sketcher.Constraint("Diameter", 0, 2.0))
sketch15.addConstraint(Sketcher.Constraint("DistanceX", 0, 3, 1, 3, 25.0))
sketch15.addConstraint(Sketcher.Constraint("DistanceY", 0, 3, 1, 3, 10.0))
sketch15.addConstraint(Sketcher.Constraint("DistanceX", 2, 3, 1, 3, 10.0))
sketch15.addConstraint(Sketcher.Constraint("DistanceY", 1, 3, 2, 3, 25.0))
sketch15.setExpression("Constraints[3]", "Params.sketch15_diameter")
pocket1 = body12.newObject("PartDesign::Pocket", "Pocket")
pocket1.Profile = sketch15
pocket1.setExpression("Length", "Params.pocket1_length")

doc.recompute()
